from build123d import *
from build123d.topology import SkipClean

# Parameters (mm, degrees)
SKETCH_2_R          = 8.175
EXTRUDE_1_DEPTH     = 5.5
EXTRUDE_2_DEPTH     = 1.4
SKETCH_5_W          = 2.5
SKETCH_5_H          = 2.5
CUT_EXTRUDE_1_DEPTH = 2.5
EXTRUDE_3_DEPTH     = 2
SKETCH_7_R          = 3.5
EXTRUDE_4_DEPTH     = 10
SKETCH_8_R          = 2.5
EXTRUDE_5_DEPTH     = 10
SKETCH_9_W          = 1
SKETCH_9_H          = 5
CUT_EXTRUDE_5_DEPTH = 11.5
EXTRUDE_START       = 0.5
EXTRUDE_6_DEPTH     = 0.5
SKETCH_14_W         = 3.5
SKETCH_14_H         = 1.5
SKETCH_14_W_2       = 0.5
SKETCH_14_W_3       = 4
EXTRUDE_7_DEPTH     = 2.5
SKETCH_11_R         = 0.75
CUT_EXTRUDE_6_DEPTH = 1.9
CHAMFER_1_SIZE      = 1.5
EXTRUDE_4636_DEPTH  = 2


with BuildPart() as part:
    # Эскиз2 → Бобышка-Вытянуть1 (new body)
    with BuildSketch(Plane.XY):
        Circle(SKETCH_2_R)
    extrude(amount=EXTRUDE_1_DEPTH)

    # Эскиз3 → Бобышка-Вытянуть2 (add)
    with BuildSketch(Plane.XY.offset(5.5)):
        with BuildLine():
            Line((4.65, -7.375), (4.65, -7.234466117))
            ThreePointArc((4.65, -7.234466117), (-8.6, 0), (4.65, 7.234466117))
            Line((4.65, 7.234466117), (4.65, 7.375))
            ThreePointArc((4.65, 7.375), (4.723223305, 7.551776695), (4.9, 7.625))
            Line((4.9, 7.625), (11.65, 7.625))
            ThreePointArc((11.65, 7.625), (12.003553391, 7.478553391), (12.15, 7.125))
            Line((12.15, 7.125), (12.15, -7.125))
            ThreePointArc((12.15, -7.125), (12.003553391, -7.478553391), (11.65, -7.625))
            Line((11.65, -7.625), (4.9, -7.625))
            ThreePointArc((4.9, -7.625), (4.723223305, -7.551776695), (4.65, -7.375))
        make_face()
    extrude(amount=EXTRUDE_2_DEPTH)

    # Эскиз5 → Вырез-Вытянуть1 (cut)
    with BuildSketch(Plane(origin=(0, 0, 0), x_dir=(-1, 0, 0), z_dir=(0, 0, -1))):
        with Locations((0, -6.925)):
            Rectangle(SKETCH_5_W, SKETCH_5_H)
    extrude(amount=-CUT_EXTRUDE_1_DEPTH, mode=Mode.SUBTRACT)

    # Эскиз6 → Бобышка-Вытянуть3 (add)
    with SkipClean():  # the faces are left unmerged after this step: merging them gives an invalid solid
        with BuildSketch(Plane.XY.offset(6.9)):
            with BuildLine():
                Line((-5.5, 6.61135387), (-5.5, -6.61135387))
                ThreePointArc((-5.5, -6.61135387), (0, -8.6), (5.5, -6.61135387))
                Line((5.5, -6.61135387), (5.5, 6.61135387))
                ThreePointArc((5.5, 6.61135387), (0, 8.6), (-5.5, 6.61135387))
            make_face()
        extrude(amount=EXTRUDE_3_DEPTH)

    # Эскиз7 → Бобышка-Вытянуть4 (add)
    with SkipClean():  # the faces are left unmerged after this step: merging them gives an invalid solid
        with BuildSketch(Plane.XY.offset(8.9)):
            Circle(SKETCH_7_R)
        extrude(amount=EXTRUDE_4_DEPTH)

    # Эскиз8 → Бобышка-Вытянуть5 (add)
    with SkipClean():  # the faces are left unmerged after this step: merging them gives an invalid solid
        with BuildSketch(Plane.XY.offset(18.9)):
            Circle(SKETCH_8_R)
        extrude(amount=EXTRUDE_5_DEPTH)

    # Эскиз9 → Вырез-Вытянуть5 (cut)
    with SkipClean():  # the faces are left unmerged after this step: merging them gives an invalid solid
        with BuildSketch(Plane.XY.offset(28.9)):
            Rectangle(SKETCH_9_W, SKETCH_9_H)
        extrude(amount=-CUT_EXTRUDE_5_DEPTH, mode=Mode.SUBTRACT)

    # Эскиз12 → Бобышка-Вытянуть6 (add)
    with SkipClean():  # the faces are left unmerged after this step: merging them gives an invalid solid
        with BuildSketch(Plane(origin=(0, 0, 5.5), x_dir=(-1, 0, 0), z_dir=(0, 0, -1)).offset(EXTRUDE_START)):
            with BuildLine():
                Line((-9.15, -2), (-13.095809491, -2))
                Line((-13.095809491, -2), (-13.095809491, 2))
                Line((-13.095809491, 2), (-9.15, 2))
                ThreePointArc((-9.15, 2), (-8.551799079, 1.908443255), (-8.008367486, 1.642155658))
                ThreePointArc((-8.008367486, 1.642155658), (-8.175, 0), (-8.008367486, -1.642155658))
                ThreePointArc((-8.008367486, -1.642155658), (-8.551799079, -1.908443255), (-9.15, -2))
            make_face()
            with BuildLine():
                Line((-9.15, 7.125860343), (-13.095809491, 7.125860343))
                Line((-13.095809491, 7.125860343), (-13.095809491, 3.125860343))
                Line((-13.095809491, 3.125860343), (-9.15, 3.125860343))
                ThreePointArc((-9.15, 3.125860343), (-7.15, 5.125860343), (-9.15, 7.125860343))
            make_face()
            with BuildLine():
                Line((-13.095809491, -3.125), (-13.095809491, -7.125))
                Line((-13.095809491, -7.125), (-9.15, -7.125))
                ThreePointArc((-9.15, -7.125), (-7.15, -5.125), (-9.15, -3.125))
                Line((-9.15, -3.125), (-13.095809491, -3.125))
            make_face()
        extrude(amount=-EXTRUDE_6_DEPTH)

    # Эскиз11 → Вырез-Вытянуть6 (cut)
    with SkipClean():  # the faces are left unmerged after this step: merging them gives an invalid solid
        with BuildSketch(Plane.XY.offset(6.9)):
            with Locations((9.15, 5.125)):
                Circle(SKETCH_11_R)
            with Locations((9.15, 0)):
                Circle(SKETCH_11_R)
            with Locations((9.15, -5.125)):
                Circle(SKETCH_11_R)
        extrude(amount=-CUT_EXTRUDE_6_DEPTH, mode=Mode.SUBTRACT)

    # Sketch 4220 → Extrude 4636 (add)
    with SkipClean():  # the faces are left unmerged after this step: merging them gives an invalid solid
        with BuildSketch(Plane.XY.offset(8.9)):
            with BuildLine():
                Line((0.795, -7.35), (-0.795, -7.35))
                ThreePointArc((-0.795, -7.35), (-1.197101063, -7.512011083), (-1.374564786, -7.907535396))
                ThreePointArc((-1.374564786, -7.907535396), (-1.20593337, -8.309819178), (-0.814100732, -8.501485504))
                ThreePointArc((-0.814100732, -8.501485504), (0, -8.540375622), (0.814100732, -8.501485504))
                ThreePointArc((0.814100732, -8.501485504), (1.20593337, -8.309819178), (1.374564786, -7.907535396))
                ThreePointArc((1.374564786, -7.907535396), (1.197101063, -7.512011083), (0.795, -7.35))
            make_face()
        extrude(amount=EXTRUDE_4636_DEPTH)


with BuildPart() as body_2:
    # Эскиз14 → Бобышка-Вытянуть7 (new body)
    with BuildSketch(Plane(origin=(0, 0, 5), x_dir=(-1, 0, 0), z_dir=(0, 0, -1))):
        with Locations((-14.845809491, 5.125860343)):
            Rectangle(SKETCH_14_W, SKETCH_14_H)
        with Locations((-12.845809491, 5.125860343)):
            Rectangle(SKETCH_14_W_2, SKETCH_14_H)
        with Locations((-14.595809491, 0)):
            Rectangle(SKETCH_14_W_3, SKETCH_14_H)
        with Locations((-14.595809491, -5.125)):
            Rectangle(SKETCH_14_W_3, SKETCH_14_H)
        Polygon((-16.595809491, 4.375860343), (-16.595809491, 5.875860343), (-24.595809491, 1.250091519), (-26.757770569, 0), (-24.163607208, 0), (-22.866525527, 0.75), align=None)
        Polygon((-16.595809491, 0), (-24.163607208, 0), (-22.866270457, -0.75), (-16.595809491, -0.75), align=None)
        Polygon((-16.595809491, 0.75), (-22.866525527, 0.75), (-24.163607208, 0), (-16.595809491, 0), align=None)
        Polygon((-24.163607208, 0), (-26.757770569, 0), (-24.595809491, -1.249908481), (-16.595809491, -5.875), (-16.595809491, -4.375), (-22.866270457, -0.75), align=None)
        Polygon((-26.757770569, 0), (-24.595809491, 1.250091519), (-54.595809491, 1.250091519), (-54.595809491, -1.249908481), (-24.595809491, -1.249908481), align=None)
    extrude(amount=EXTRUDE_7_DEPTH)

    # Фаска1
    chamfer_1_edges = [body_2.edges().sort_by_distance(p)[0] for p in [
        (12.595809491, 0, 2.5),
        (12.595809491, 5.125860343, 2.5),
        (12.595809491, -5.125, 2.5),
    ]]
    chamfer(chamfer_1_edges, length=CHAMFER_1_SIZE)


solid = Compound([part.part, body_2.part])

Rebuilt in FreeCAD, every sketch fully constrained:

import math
import FreeCAD as App
import Part
import Sketcher


def edges_at(feature, points):
    """Names of the edges that pass closest to the given points."""
    edges = feature.Shape.Edges
    near = lambda p: min(range(len(edges)), key=lambda i: edges[i].distToShape(Part.Vertex(*p))[0])
    return sorted({f"Edge{near(p) + 1}" for p in points})


def add_polygon(sketch, points):
    """Adds a closed chain of lines whose ends are joined by coincident constraints."""
    first, n = sketch.GeometryCount, len(points)
    for a, b in zip(points, points[1:] + points[:1]):
        sketch.addGeometry(Part.LineSegment(App.Vector(*a, 0), App.Vector(*b, 0)), False)
    for i in range(n):
        sketch.addConstraint(Sketcher.Constraint("Coincident", first + i, 2, first + (i + 1) % n, 1))

doc = App.newDocument("Part")
body = doc.addObject("PartDesign::Body", "Body")

sketch1 = doc.addObject("Sketcher::SketchObject", "Sketch")
body.addObject(sketch1)
sketch1.AttachmentSupport = (doc.XY_Plane, [""])
sketch1.MapMode = "FlatFace"
sketch1.addGeometry(Part.Circle(App.Vector(0, 0, 0), App.Vector(0, 0, 1), 8), False)
sketch1.addConstraint([
    Sketcher.Constraint("Coincident", 0, 3, -1, 1),
    Sketcher.Constraint("Diameter", 0, 16.35),
])
pad1 = doc.addObject("PartDesign::Pad", "Pad")
body.addObject(pad1)
pad1.Profile = sketch1
pad1.Length = 5.5

sketch2 = doc.addObject("Sketcher::SketchObject", "Sketch001")
body.addObject(sketch2)
sketch2.AttachmentSupport = (doc.XY_Plane, [""])
sketch2.MapMode = "FlatFace"
sketch2.AttachmentOffset = App.Placement(App.Vector(0, 0, 5.5), App.Rotation())
sketch2.addGeometry([
    Part.LineSegment(App.Vector(4.65, -7.23, 0), App.Vector(4.65, -7.38, 0)),
    Part.ArcOfCircle(Part.Circle(App.Vector(4.9, -7.37, 0), App.Vector(0, 0, 1), 0.25), math.radians(-180), math.radians(-90)),
    Part.LineSegment(App.Vector(4.9, -7.62, 0), App.Vector(11.65, -7.62, 0)),
    Part.ArcOfCircle(Part.Circle(App.Vector(11.65, -7.13, 0), App.Vector(0, 0, 1), 0.5), math.radians(-90), math.radians(0)),
    Part.LineSegment(App.Vector(12.15, -7.12, 0), App.Vector(12.15, 7.12, 0)),
    Part.ArcOfCircle(Part.Circle(App.Vector(11.65, 7.13, 0), App.Vector(0, 0, 1), 0.5), math.radians(0), math.radians(90)),
    Part.LineSegment(App.Vector(11.65, 7.62, 0), App.Vector(4.9, 7.62, 0)),
    Part.ArcOfCircle(Part.Circle(App.Vector(4.9, 7.37, 0), App.Vector(0, 0, 1), 0.25), math.radians(90), math.radians(180)),
    Part.LineSegment(App.Vector(4.65, 7.38, 0), App.Vector(4.65, 7.23, 0)),
    Part.ArcOfCircle(Part.Circle(App.Vector(0, 0, 0), App.Vector(0, 0, 1), 8.6), math.radians(57), math.radians(303)),
], False)
sketch2.addConstraint([
    Sketcher.Constraint("Tangent", 0, 2, 1, 1),
    Sketcher.Constraint("Tangent", 1, 2, 2, 1),
    Sketcher.Constraint("Tangent", 2, 2, 3, 1),
    Sketcher.Constraint("Tangent", 3, 2, 4, 1),
    Sketcher.Constraint("Tangent", 4, 2, 5, 1),
    Sketcher.Constraint("Tangent", 5, 2, 6, 1),
    Sketcher.Constraint("Tangent", 6, 2, 7, 1),
    Sketcher.Constraint("Tangent", 7, 2, 8, 1),
    Sketcher.Constraint("Coincident", 8, 2, 9, 1),
    Sketcher.Constraint("Coincident", 9, 2, 0, 1),
    Sketcher.Constraint("Vertical", 0),
    Sketcher.Constraint("Horizontal", 2),
    Sketcher.Constraint("Vertical", 4),
    Sketcher.Constraint("Horizontal", 6),
    Sketcher.Constraint("Vertical", 8),
    Sketcher.Constraint("Coincident", 9, 3, -1, 1),
    Sketcher.Constraint("Equal", 3, 5),
    Sketcher.Constraint("Equal", 1, 7),
    Sketcher.Constraint("Symmetric", 1, 3, 7, 3, -1),
    Sketcher.Constraint("Radius", 3, 0.5),
    Sketcher.Constraint("Radius", 9, 8.6),
    Sketcher.Constraint("Radius", 1, 0.25),
    Sketcher.Constraint("DistanceX", 0, 2, 3, 3, 7.0),
    Sketcher.Constraint("DistanceY", 1, 2, 7, 3, 15.0),
    Sketcher.Constraint("DistanceX", -1, 1, 1, 3, 4.9),
])
pad2 = doc.addObject("PartDesign::Pad", "Pad001")
body.addObject(pad2)
pad2.Profile = sketch2
pad2.Length = 1.4

sketch3 = doc.addObject("Sketcher::SketchObject", "Sketch002")
body.addObject(sketch3)
sketch3.AttachmentSupport = (doc.XY_Plane, [""])
sketch3.MapMode = "FlatFace"
add_polygon(sketch3, [(1.2, -5.7), (1.2, -8.2), (-1.2, -8.2), (-1.2, -5.7)])
sketch3.addConstraint([
    Sketcher.Constraint("Vertical", 0),
    Sketcher.Constraint("Horizontal", 1),
    Sketcher.Constraint("Vertical", 2),
    Sketcher.Constraint("Horizontal", 3),
    Sketcher.Constraint("Equal", 3, 0),
    Sketcher.Constraint("DistanceX", 1, 2, 1, 1, 2.5),
    Sketcher.Constraint("DistanceX", -1, 1, 0, 2, 1.25),
    Sketcher.Constraint("DistanceY", 0, 2, -1, 1, 8.175),
])
pocket1 = doc.addObject("PartDesign::Pocket", "Pocket")
body.addObject(pocket1)
pocket1.Profile = sketch3
pocket1.Length = 2.5
pocket1.Reversed = True

sketch4 = doc.addObject("Sketcher::SketchObject", "Sketch003")
body.addObject(sketch4)
sketch4.AttachmentSupport = (doc.XY_Plane, [""])
sketch4.MapMode = "FlatFace"
sketch4.AttachmentOffset = App.Placement(App.Vector(0, 0, 6.9), App.Rotation())
sketch4.addGeometry([
    Part.LineSegment(App.Vector(-6, 7, 0), App.Vector(-6, -7, 0)),
    Part.ArcOfCircle(Part.Circle(App.Vector(0, 0, 0), App.Vector(0, 0, 1), 9), math.radians(-130), math.radians(-50)),
    Part.LineSegment(App.Vector(6, -7, 0), App.Vector(6, 7, 0)),
    Part.ArcOfCircle(Part.Circle(App.Vector(0, 0, 0), App.Vector(0, 0, 1), 9), math.radians(50), math.radians(130)),
], False)
sketch4.addConstraint([
    Sketcher.Constraint("Coincident", 0, 2, 1, 1),
    Sketcher.Constraint("Coincident", 1, 2, 2, 1),
    Sketcher.Constraint("Coincident", 2, 2, 3, 1),
    Sketcher.Constraint("Coincident", 3, 2, 0, 1),
    Sketcher.Constraint("Vertical", 0),
    Sketcher.Constraint("Vertical", 2),
    Sketcher.Constraint("Coincident", 1, 3, -1, 1),
    Sketcher.Constraint("Coincident", 3, 3, -1, 1),
    Sketcher.Constraint("Equal", 1, 3),
    Sketcher.Constraint("Horizontal", 0, 2, 1, 2),
    Sketcher.Constraint("Radius", 1, 8.6),
    Sketcher.Constraint("DistanceX", 0, 2, 1, 2, 11.0),
])
pad3 = doc.addObject("PartDesign::Pad", "Pad002")
body.addObject(pad3)
pad3.Profile = sketch4
pad3.Length = 2

sketch5 = doc.addObject("Sketcher::SketchObject", "Sketch004")
body.addObject(sketch5)
sketch5.AttachmentSupport = (doc.XY_Plane, [""])
sketch5.MapMode = "FlatFace"
sketch5.AttachmentOffset = App.Placement(App.Vector(0, 0, 8.9), App.Rotation())
sketch5.addGeometry(Part.Circle(App.Vector(0, 0, 0), App.Vector(0, 0, 1), 3.5), False)
sketch5.addConstraint([
    Sketcher.Constraint("Coincident", 0, 3, -1, 1),
    Sketcher.Constraint("Diameter", 0, 7.0),
])
pad4 = doc.addObject("PartDesign::Pad", "Pad003")
body.addObject(pad4)
pad4.Profile = sketch5
pad4.Length = 10

sketch6 = doc.addObject("Sketcher::SketchObject", "Sketch005")
body.addObject(sketch6)
sketch6.AttachmentSupport = (doc.XY_Plane, [""])
sketch6.MapMode = "FlatFace"
sketch6.AttachmentOffset = App.Placement(App.Vector(0, 0, 18.9), App.Rotation())
sketch6.addGeometry(Part.Circle(App.Vector(0, 0, 0), App.Vector(0, 0, 1), 2.5), False)
sketch6.addConstraint([
    Sketcher.Constraint("Coincident", 0, 3, -1, 1),
    Sketcher.Constraint("Diameter", 0, 5.0),
])
pad5 = doc.addObject("PartDesign::Pad", "Pad004")
body.addObject(pad5)
pad5.Profile = sketch6
pad5.Length = 10

sketch7 = doc.addObject("Sketcher::SketchObject", "Sketch006")
body.addObject(sketch7)
sketch7.AttachmentSupport = (doc.XY_Plane, [""])
sketch7.MapMode = "FlatFace"
sketch7.AttachmentOffset = App.Placement(App.Vector(0, 0, 28.9), App.Rotation())
add_polygon(sketch7, [(-0.5, 2.5), (-0.5, -2.5), (0.5, -2.5), (0.5, 2.5)])
sketch7.addConstraint([
    Sketcher.Constraint("Vertical", 0),
    Sketcher.Constraint("Horizontal", 1),
    Sketcher.Constraint("Vertical", 2),
    Sketcher.Constraint("Horizontal", 3),
    Sketcher.Constraint("Symmetric", 0, 2, 2, 2, -1, 1),
    Sketcher.Constraint("DistanceX", 1, 1, 1, 2, 1.0),
    Sketcher.Constraint("DistanceY", 0, 2, 0, 1, 5.0),
])
pocket2 = doc.addObject("PartDesign::Pocket", "Pocket001")
body.addObject(pocket2)
pocket2.Profile = sketch7
pocket2.Length = 11.5

sketch8 = doc.addObject("Sketcher::SketchObject", "Sketch007")
body.addObject(sketch8)
sketch8.AttachmentSupport = (doc.XY_Plane, [""])
sketch8.MapMode = "FlatFace"
sketch8.AttachmentOffset = App.Placement(App.Vector(0, 0, 5), App.Rotation())
sketch8.addGeometry([
    Part.LineSegment(App.Vector(13.1, -2, 0), App.Vector(9.2, -2, 0)),
    Part.ArcOfCircle(Part.Circle(App.Vector(9.2, 0, 0), App.Vector(0, 0, 1), 2), math.radians(-125), math.radians(-90)),
    Part.ArcOfCircle(Part.Circle(App.Vector(0, 0, 0), App.Vector(0, 0, 1), 8.2), math.radians(-12), math.radians(12)),
    Part.ArcOfCircle(Part.Circle(App.Vector(9.2, 0, 0), App.Vector(0, 0, 1), 2), math.radians(90), math.radians(125)),
    Part.LineSegment(App.Vector(9.2, 2, 0), App.Vector(13.1, 2, 0)),
    Part.LineSegment(App.Vector(13.1, 2, 0), App.Vector(13.1, -2, 0)),
    Part.LineSegment(App.Vector(9.2, 7.1, 0), App.Vector(13.1, 7.1, 0)),
    Part.LineSegment(App.Vector(13.1, 7.1, 0), App.Vector(13.1, 3.1, 0)),
    Part.LineSegment(App.Vector(13.1, 3.1, 0), App.Vector(9.2, 3.1, 0)),
    Part.ArcOfCircle(Part.Circle(App.Vector(9.2, 5.1, 0), App.Vector(0, 0, 1), 2), math.radians(90), math.radians(270)),
    Part.LineSegment(App.Vector(13.1, -3.1, 0), App.Vector(13.1, -7.1, 0)),
    Part.LineSegment(App.Vector(13.1, -7.1, 0), App.Vector(9.2, -7.1, 0)),
    Part.ArcOfCircle(Part.Circle(App.Vector(9.2, -5.1, 0), App.Vector(0, 0, 1), 2), math.radians(90), math.radians(270)),
    Part.LineSegment(App.Vector(9.2, -3.1, 0), App.Vector(13.1, -3.1, 0)),
], False)
sketch8.addConstraint([
    Sketcher.Constraint("Tangent", 0, 2, 1, 2),
    Sketcher.Constraint("Coincident", 1, 1, 2, 1),
    Sketcher.Constraint("Coincident", 2, 2, 3, 2),
    Sketcher.Constraint("Tangent", 3, 1, 4, 1),
    Sketcher.Constraint("Coincident", 4, 2, 5, 1),
    Sketcher.Constraint("Coincident", 5, 2, 0, 1),
    Sketcher.Constraint("Coincident", 6, 2, 7, 1),
    Sketcher.Constraint("Coincident", 7, 2, 8, 1),
    Sketcher.Constraint("Tangent", 8, 2, 9, 2),
    Sketcher.Constraint("Tangent", 9, 1, 6, 1),
    Sketcher.Constraint("Coincident", 10, 2, 11, 1),
    Sketcher.Constraint("Tangent", 11, 2, 12, 2),
    Sketcher.Constraint("Tangent", 12, 1, 13, 1),
    Sketcher.Constraint("Coincident", 13, 2, 10, 1),
    Sketcher.Constraint("Horizontal", 0),
    Sketcher.Constraint("Horizontal", 4),
    Sketcher.Constraint("Vertical", 5),
    Sketcher.Constraint("Horizontal", 6),
    Sketcher.Constraint("Vertical", 7),
    Sketcher.Constraint("Horizontal", 8),
    Sketcher.Constraint("Vertical", 10),
    Sketcher.Constraint("Horizontal", 11),
    Sketcher.Constraint("Horizontal", 13),
    Sketcher.Constraint("Coincident", 2, 3, -1, 1),
    Sketcher.Constraint("Coincident", 3, 3, 1, 3),
    Sketcher.Constraint("Equal", 1, 3),
    Sketcher.Constraint("Equal", 3, 9),
    Sketcher.Constraint("Equal", 9, 12),
    Sketcher.Constraint("PointOnObject", 1, 3, -1),
    Sketcher.Constraint("Vertical", 3, 3, 9, 3),
    Sketcher.Constraint("Vertical", 9, 3, 12, 3),
    Sketcher.Constraint("Vertical", 5, 2, 6, 2),
    Sketcher.Constraint("Vertical", 7, 2, 10, 2),
    Sketcher.Constraint("Radius", 1, 2.0),
    Sketcher.Constraint("Radius", 2, 8.175),
    Sketcher.Constraint("DistanceX", -1, 1, 1, 3, 9.15),
    Sketcher.Constraint("DistanceY", 12, 3, -1, 1, 5.125),
    Sketcher.Constraint("DistanceX", 0, 2, 0, 1, 3.945809),
    Sketcher.Constraint("DistanceY", -1, 1, 9, 3, 5.12586),
])
pad6 = doc.addObject("PartDesign::Pad", "Pad005")
body.addObject(pad6)
pad6.Profile = sketch8
pad6.Length = 0.5

sketch9 = doc.addObject("Sketcher::SketchObject", "Sketch008")
body.addObject(sketch9)
sketch9.AttachmentSupport = (doc.XY_Plane, [""])
sketch9.MapMode = "FlatFace"
sketch9.AttachmentOffset = App.Placement(App.Vector(0, 0, 6.9), App.Rotation())
sketch9.addGeometry([
    Part.Circle(App.Vector(9.2, 5.1, 0), App.Vector(0, 0, 1), 0.8),
    Part.Circle(App.Vector(9.2, 0, 0), App.Vector(0, 0, 1), 0.8),
    Part.Circle(App.Vector(9.2, -5.1, 0), App.Vector(0, 0, 1), 0.8),
], False)
sketch9.addConstraint([
    Sketcher.Constraint("Equal", 0, 1),
    Sketcher.Constraint("Equal", 1, 2),
    Sketcher.Constraint("Symmetric", 0, 3, 2, 3, -1),
    Sketcher.Constraint("PointOnObject", 1, 3, -1),
    Sketcher.Constraint("Vertical", 0, 3, 1, 3),
    Sketcher.Constraint("Diameter", 0, 1.5),
    Sketcher.Constraint("DistanceX", -1, 1, 0, 3, 9.15),
    Sketcher.Constraint("DistanceY", 2, 3, 0, 3, 10.25),
])
pocket3 = doc.addObject("PartDesign::Pocket", "Pocket002")
body.addObject(pocket3)
pocket3.Profile = sketch9
pocket3.Length = 1.9

sketch10 = doc.addObject("Sketcher::SketchObject", "Sketch009")
body.addObject(sketch10)
sketch10.AttachmentSupport = (doc.XY_Plane, [""])
sketch10.MapMode = "FlatFace"
sketch10.AttachmentOffset = App.Placement(App.Vector(0, 0, 8.9), App.Rotation())
sketch10.addGeometry([
    Part.LineSegment(App.Vector(0.8, -7.3, 0), App.Vector(-0.8, -7.3, 0)),
    Part.ArcOfCircle(Part.Circle(App.Vector(-0.8, -7.9, 0), App.Vector(0, 0, 1), 0.6), math.radians(90), math.radians(178)),
    Part.ArcOfCircle(Part.Circle(App.Vector(-0.8, -7.9, 0), App.Vector(0, 0, 1), 0.6), math.radians(-178), math.radians(-95)),
    Part.ArcOfCircle(Part.Circle(App.Vector(0, 0, 0), App.Vector(0, 0, 1), 8.5), math.radians(-95.47), math.radians(-84.53)),
    Part.ArcOfCircle(Part.Circle(App.Vector(0.8, -7.9, 0), App.Vector(0, 0, 1), 0.6), math.radians(-85), math.radians(-2)),
    Part.ArcOfCircle(Part.Circle(App.Vector(0.8, -7.9, 0), App.Vector(0, 0, 1), 0.6), math.radians(2), math.radians(90)),
], False)
sketch10.addConstraint([
    Sketcher.Constraint("Tangent", 0, 2, 1, 1),
    Sketcher.Constraint("Coincident", 1, 2, 2, 1),
    Sketcher.Constraint("Tangent", 2, 2, 3, 1),
    Sketcher.Constraint("Tangent", 3, 2, 4, 1),
    Sketcher.Constraint("Coincident", 4, 2, 5, 1),
    Sketcher.Constraint("Tangent", 5, 2, 0, 1),
    Sketcher.Constraint("Horizontal", 0),
    Sketcher.Constraint("Coincident", 3, 3, -1, 1),
    Sketcher.Constraint("Equal", 2, 4),
    Sketcher.Constraint("Equal", 1, 5),
    Sketcher.Constraint("Symmetric", 1, 2, 4, 2, -2),
    Sketcher.Constraint("Radius", 1, 0.58),
    Sketcher.Constraint("Radius", 2, 0.62),
    Sketcher.Constraint("DistanceX", 0, 2, 0, 1, 1.59),
    Sketcher.Constraint("DistanceY", 1, 3, -1, 1, 7.93),
    Sketcher.Constraint("DistanceX", 1, 3, 2, 3, 0.04),
    Sketcher.Constraint("Radius", 3, 8.540376),
])
pad7 = doc.addObject("PartDesign::Pad", "Pad006")
body.addObject(pad7)
pad7.Profile = sketch10
pad7.Length = 2
body2 = doc.addObject("PartDesign::Body", "Body001")

sketch11 = doc.addObject("Sketcher::SketchObject", "Sketch010")
body2.addObject(sketch11)
sketch11.AttachmentSupport = (doc.getObject("XY_Plane001"), [""])
sketch11.MapMode = "FlatFace"
sketch11.AttachmentOffset = App.Placement(App.Vector(0, 0, 5), App.Rotation())
add_polygon(sketch11, [(16.6, 4.4), (12.6, 4.4), (12.6, 5.9), (16.6, 5.9), (24.6, 1.3), (54.6, 1.3), (54.6, -1.2), (24.6, -1.2), (16.6, -5.9), (12.6, -5.9), (12.6, -4.4), (16.6, -4.4), (22.9, -0.8), (12.6, -0.8), (12.6, 0.8), (22.9, 0.8)])
sketch11.addConstraint([
    Sketcher.Constraint("Horizontal", 0),
    Sketcher.Constraint("Vertical", 1),
    Sketcher.Constraint("Horizontal", 2),
    Sketcher.Constraint("Horizontal", 4),
    Sketcher.Constraint("Vertical", 5),
    Sketcher.Constraint("Horizontal", 6),
    Sketcher.Constraint("Horizontal", 8),
    Sketcher.Constraint("Vertical", 9),
    Sketcher.Constraint("Horizontal", 10),
    Sketcher.Constraint("Horizontal", 12),
    Sketcher.Constraint("Vertical", 13),
    Sketcher.Constraint("Horizontal", 14),
    Sketcher.Constraint("Parallel", 3, 15),
    Sketcher.Constraint("Vertical", 3, 2, 6, 2),
    Sketcher.Constraint("Vertical", 2, 2, 7, 2),
    Sketcher.Constraint("Vertical", 1, 2, 8, 2),
    Sketcher.Constraint("Vertical", 7, 2, 10, 2),
    Sketcher.Constraint("Vertical", 9, 2, 12, 2),
    Sketcher.Constraint("Vertical", 10, 2, 15, 2),
    Sketcher.Constraint("Equal", 1, 9),
    Sketcher.Constraint("Equal", 9, 13),
    Sketcher.Constraint("DistanceX", 0, 2, 0, 1, 4.0),
    Sketcher.Constraint("DistanceX", 4, 1, 4, 2, 30.0),
    Sketcher.Constraint("DistanceY", 1, 1, 1, 2, 1.5),
    Sketcher.Constraint("DistanceY", 5, 2, 5, 1, 2.5),
    Sketcher.Constraint("DistanceX", 2, 2, 3, 2, 8.0),
    Sketcher.Constraint("DistanceY", 11, 2, -1, 1, 0.75),
    Sketcher.Constraint("DistanceY", 7, 2, -1, 1, 5.875),
    Sketcher.Constraint("DistanceX", 12, 2, 12, 1, 10.270461),
    Sketcher.Constraint("Distance", 3, 9.24109),
    Sketcher.Constraint("Distance", 7, 9.240751),
    Sketcher.Constraint("DistanceX", -1, 1, 0, 2, 12.595809),
])
pad8 = doc.addObject("PartDesign::Pad", "Pad007")
body2.addObject(pad8)
pad8.Profile = sketch11
pad8.Length = 2.5
pad8.Reversed = True
doc.recompute()

chamfer = doc.addObject("PartDesign::Chamfer", "Chamfer")
body2.addObject(chamfer)
chamfer.Base = (pad8, edges_at(pad8, [(12.596, 0, 2.5), (12.596, 5.126, 2.5), (12.596, -5.125, 2.5)]))
chamfer.Size = 1.5

doc.recompute()
